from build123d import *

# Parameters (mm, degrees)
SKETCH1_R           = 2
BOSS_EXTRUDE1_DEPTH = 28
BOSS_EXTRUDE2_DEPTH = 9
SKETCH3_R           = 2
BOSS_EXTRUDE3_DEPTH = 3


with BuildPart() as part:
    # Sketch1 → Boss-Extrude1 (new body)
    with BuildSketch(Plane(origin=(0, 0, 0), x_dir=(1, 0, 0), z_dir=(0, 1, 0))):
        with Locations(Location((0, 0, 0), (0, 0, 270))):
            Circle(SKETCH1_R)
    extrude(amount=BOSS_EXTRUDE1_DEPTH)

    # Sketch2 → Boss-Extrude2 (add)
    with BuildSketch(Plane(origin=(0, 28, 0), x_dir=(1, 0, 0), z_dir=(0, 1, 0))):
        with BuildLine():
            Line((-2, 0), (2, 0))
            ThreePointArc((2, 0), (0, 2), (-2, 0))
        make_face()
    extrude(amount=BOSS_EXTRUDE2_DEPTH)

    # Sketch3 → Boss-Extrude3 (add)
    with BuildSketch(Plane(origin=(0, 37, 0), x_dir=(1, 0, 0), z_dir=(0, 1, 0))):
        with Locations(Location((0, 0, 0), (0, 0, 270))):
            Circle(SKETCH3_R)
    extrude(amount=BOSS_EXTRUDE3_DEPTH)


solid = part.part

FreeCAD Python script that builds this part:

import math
import FreeCAD as App
import Part
import Sketcher
from FreeCAD import Vector

doc = App.newDocument("Part")
body = doc.addObject("PartDesign::Body", "Body")

# Sketch on XZ plane
sketch1 = doc.addObject("Sketcher::SketchObject", "Sketch")
body.addObject(sketch1)
sketch1.AttachmentSupport = (doc.XZ_Plane, [""])
sketch1.MapMode = "FlatFace"
sketch1.addGeometry(Part.Circle(Vector(0, 0, 0), Vector(0, 0, 1), 2), False)
sketch1.addConstraint([
    Sketcher.Constraint("Coincident", 0, 3, -1, 1),
    Sketcher.Constraint("Diameter", 0, 4.0),
])
pad1 = doc.addObject("PartDesign::Pad", "Pad")
body.addObject(pad1)
pad1.Profile = sketch1
pad1.Length = 28
pad1.Reversed = True

# Sketch on XZ plane
sketch2 = doc.addObject("Sketcher::SketchObject", "Sketch001")
body.addObject(sketch2)
sketch2.AttachmentSupport = (doc.XZ_Plane, [""])
sketch2.MapMode = "FlatFace"
sketch2.AttachmentOffset = App.Placement(Vector(0, 0, -28), App.Rotation())
sketch2.addGeometry([
    Part.LineSegment(Vector(-2, 0, 0), Vector(2, 0, 0)),
    Part.ArcOfCircle(Part.Circle(Vector(0, 0, 0), Vector(0, 0, 1), 2), math.radians(180), math.radians(360)),
], False)
sketch2.addConstraint([
    Sketcher.Constraint("Coincident", 0, 1, 1, 1),
    Sketcher.Constraint("Coincident", 1, 2, 0, 2),
    Sketcher.Constraint("Horizontal", 0),
    Sketcher.Constraint("Coincident", 1, 3, -1, 1),
    Sketcher.Constraint("PointOnObject", 0, 1, -1),
    Sketcher.Constraint("Radius", 1, 2.0),
])
pad2 = doc.addObject("PartDesign::Pad", "Pad001")
body.addObject(pad2)
pad2.Profile = sketch2
pad2.Length = 9
pad2.Reversed = True

# Sketch on XZ plane
sketch3 = doc.addObject("Sketcher::SketchObject", "Sketch002")
body.addObject(sketch3)
sketch3.AttachmentSupport = (doc.XZ_Plane, [""])
sketch3.MapMode = "FlatFace"
sketch3.AttachmentOffset = App.Placement(Vector(0, 0, -37), App.Rotation())
sketch3.addGeometry(Part.Circle(Vector(0, 0, 0), Vector(0, 0, 1), 2), False)
sketch3.addConstraint([
    Sketcher.Constraint("Coincident", 0, 3, -1, 1),
    Sketcher.Constraint("Diameter", 0, 4.0),
])
pad3 = doc.addObject("PartDesign::Pad", "Pad002")
body.addObject(pad3)
pad3.Profile = sketch3
pad3.Length = 3
pad3.Reversed = True

doc.recompute()
